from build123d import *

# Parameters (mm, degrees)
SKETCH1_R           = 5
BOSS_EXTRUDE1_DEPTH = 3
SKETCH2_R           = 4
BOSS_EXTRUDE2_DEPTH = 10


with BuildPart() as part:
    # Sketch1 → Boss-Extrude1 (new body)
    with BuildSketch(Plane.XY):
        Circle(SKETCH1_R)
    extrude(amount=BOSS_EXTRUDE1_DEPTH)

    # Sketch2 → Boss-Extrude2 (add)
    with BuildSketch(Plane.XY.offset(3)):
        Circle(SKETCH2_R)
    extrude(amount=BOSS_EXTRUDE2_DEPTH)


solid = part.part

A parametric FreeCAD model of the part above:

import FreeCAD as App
import Part
import Sketcher

V = App.Vector
Q = App.Units.Quantity

doc = App.newDocument("Part")
params = doc.addObject("Spreadsheet::Sheet", "Params")
for row, (alias, value) in enumerate([
    ("sketch1_diameter", "10 mm"),
    ("pad1_length", "3 mm"),
    ("sketch2_diameter", "8 mm"),
    ("pad2_length", "10 mm"),
], start=1):
    params.set(f"A{row}", alias)
    params.set(f"B{row}", "=" + value)
    params.setAlias(f"B{row}", alias)

body = doc.addObject("PartDesign::Body", "Body")

# Sketch on XY plane
sketch1 = body.newObject("Sketcher::SketchObject", "Sketch")
sketch1.AttachmentSupport = (doc.getObject("XY_Plane"), [""])
sketch1.MapMode = "FlatFace"
sketch1.addGeometry(Part.Circle(V(0, 0, 0), V(0, 0, 1), 5), False)
sketch1.addConstraint(Sketcher.Constraint("Coincident", 0, 3, -1, 1))
sketch1.addConstraint(Sketcher.Constraint("Diameter", 0, Q("10 mm")))
sketch1.setExpression("Constraints[1]", "Params.sketch1_diameter")
pad1 = body.newObject("PartDesign::Pad", "Pad")
pad1.Profile = sketch1
pad1.setExpression("Length", "Params.pad1_length")

# Sketch on XY plane
sketch2 = body.newObject("Sketcher::SketchObject", "Sketch001")
sketch2.AttachmentSupport = (doc.getObject("XY_Plane"), [""])
sketch2.MapMode = "FlatFace"
sketch2.AttachmentOffset = App.Placement(V(0, 0, 3), App.Rotation())
sketch2.addGeometry(Part.Circle(V(0, 0, 0), V(0, 0, 1), 4), False)
sketch2.addConstraint(Sketcher.Constraint("Coincident", 0, 3, -1, 1))
sketch2.addConstraint(Sketcher.Constraint("Diameter", 0, Q("8 mm")))
sketch2.setExpression("Constraints[1]", "Params.sketch2_diameter")
pad2 = body.newObject("PartDesign::Pad", "Pad001")
pad2.Profile = sketch2
pad2.setExpression("Length", "Params.pad2_length")

doc.recompute()
